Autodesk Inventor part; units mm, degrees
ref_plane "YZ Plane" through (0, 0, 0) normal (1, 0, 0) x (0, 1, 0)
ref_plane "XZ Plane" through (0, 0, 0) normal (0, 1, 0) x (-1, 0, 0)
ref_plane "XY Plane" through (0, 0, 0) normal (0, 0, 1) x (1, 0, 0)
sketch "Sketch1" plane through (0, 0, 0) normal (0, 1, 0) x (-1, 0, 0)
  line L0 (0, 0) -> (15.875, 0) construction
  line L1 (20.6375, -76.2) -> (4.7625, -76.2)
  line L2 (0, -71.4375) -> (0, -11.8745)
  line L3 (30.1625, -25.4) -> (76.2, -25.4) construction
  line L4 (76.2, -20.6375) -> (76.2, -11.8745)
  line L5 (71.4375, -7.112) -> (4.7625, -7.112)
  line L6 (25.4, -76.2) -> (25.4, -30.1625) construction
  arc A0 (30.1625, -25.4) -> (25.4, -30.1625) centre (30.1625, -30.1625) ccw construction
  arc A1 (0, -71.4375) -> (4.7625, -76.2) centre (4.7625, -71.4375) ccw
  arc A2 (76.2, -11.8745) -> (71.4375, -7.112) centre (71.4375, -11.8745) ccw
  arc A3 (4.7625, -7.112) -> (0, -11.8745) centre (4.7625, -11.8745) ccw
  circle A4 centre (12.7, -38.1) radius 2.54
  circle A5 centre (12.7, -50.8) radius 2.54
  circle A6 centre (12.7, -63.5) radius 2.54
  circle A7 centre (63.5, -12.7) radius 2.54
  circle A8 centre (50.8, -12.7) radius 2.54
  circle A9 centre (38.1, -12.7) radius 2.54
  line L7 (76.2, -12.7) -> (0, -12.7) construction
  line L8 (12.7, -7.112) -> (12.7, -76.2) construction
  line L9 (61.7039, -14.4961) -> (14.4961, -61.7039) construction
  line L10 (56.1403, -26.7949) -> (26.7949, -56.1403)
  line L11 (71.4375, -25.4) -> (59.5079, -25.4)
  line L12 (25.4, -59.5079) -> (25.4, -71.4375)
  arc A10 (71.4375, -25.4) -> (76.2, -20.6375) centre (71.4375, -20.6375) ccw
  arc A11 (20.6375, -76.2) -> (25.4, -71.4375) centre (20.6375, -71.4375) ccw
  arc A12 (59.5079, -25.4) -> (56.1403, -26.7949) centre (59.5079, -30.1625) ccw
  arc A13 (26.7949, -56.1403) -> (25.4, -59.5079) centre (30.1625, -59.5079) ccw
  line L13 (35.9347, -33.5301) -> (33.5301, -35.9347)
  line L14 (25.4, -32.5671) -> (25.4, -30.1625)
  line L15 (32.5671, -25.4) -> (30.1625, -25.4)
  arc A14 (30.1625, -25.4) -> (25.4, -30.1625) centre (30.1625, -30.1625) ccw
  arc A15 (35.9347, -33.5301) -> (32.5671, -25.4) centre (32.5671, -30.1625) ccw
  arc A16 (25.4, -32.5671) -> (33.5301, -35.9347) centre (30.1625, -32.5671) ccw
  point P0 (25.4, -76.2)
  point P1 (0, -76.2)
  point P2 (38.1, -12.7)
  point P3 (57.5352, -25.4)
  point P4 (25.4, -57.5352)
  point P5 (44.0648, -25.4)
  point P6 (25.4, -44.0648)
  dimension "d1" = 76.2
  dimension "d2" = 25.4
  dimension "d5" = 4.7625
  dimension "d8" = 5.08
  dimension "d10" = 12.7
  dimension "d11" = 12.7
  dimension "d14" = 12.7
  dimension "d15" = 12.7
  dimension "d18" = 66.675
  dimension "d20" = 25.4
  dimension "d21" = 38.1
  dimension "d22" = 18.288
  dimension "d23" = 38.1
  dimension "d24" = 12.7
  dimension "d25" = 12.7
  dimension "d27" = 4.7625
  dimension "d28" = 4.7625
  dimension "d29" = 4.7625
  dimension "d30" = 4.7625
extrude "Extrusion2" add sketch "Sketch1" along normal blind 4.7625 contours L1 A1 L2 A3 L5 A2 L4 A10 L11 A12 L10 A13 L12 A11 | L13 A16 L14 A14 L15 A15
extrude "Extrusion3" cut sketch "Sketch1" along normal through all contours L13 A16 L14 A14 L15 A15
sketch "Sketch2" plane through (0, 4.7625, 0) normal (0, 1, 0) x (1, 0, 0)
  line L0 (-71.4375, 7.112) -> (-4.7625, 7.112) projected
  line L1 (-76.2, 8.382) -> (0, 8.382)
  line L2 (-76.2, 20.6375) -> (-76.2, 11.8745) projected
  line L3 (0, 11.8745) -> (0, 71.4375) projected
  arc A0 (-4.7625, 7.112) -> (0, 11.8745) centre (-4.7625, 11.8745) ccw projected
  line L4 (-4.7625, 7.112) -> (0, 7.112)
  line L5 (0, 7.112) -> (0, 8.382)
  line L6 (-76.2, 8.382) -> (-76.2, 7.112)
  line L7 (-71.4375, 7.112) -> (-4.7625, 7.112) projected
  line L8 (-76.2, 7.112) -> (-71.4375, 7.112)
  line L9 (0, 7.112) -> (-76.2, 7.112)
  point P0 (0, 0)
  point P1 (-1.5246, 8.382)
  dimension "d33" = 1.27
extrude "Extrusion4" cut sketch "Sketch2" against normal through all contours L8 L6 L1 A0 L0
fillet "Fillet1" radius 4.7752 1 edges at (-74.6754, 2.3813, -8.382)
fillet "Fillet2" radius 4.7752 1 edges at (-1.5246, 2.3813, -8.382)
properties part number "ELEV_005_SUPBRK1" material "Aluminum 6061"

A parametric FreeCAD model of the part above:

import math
import FreeCAD as App
import Part
import Sketcher
from FreeCAD import Vector
Q = App.Units.Quantity


def edges_at(feature, points):
    """Names of the edges that pass closest to the given points."""
    edges = feature.Shape.Edges
    near = lambda p: min(range(len(edges)), key=lambda i: edges[i].distToShape(Part.Vertex(*p))[0])
    return sorted({f"Edge{near(p) + 1}" for p in points})

doc = App.newDocument("Part")
body = doc.addObject("PartDesign::Body", "Body")

sketch1 = body.newObject("Sketcher::SketchObject", "Sketch")
sketch1.AttachmentSupport = (doc.getObject("XZ_Plane"), [""])
sketch1.MapMode = "FlatFace"
sketch1.addGeometry(Part.LineSegment(Vector(-4.7625, -76.2, 0), Vector(-20.6375, -76.2, 0)), False)
sketch1.addGeometry(Part.ArcOfCircle(Part.Circle(Vector(-20.6375, -71.4375, 0), Vector(0, 0, 1), 4.7625), math.radians(180), math.radians(270)), False)
sketch1.addGeometry(Part.LineSegment(Vector(-25.4, -71.4375, 0), Vector(-25.4, -59.5079, 0)), False)
sketch1.addGeometry(Part.ArcOfCircle(Part.Circle(Vector(-30.1625, -59.5079, 0), Vector(0, 0, 1), 4.762506), math.radians(0), math.radians(45)), False)
sketch1.addGeometry(Part.LineSegment(Vector(-26.7949, -56.1403, 0), Vector(-56.1403, -26.7949, 0)), False)
sketch1.addGeometry(Part.ArcOfCircle(Part.Circle(Vector(-59.5079, -30.1625, 0), Vector(0, 0, 1), 4.7625), math.radians(45), math.radians(90)), False)
sketch1.addGeometry(Part.LineSegment(Vector(-59.5079, -25.4, 0), Vector(-71.4375, -25.4, 0)), False)
sketch1.addGeometry(Part.ArcOfCircle(Part.Circle(Vector(-71.4375, -20.6375, 0), Vector(0, 0, 1), 4.7625), math.radians(180), math.radians(270)), False)
sketch1.addGeometry(Part.LineSegment(Vector(-76.2, -20.6375, 0), Vector(-76.2, -11.8745, 0)), False)
sketch1.addGeometry(Part.ArcOfCircle(Part.Circle(Vector(-71.4375, -11.8745, 0), Vector(0, 0, 1), 4.7625), math.radians(90), math.radians(180)), False)
sketch1.addGeometry(Part.LineSegment(Vector(-71.4375, -7.112, 0), Vector(-4.7625, -7.112, 0)), False)
sketch1.addGeometry(Part.ArcOfCircle(Part.Circle(Vector(-4.7625, -11.8745, 0), Vector(0, 0, 1), 4.7625), math.radians(0), math.radians(90)), False)
sketch1.addGeometry(Part.LineSegment(Vector(0, -11.8745, 0), Vector(0, -71.4375, 0)), False)
sketch1.addGeometry(Part.ArcOfCircle(Part.Circle(Vector(-4.7625, -71.4375, 0), Vector(0, 0, 1), 4.7625), math.radians(-90), math.radians(0)), False)
sketch1.addGeometry(Part.Circle(Vector(-12.7, -63.5, 0), Vector(0, 0, 1), 2.54), False)
sketch1.addGeometry(Part.Circle(Vector(-12.7, -50.8, 0), Vector(0, 0, 1), 2.54), False)
sketch1.addGeometry(Part.Circle(Vector(-12.7, -38.1, 0), Vector(0, 0, 1), 2.54), False)
sketch1.addGeometry(Part.Circle(Vector(-38.1, -12.7, 0), Vector(0, 0, 1), 2.54), False)
sketch1.addGeometry(Part.Circle(Vector(-50.8, -12.7, 0), Vector(0, 0, 1), 2.54), False)
sketch1.addGeometry(Part.Circle(Vector(-63.5, -12.7, 0), Vector(0, 0, 1), 2.54), False)
sketch1.addConstraint(Sketcher.Constraint("Tangent", 0, 2, 1, 2))
sketch1.addConstraint(Sketcher.Constraint("Tangent", 1, 1, 2, 1))
sketch1.addConstraint(Sketcher.Constraint("Tangent", 2, 2, 3, 1))
sketch1.addConstraint(Sketcher.Constraint("Tangent", 3, 2, 4, 1))
sketch1.addConstraint(Sketcher.Constraint("Tangent", 4, 2, 5, 1))
sketch1.addConstraint(Sketcher.Constraint("Tangent", 5, 2, 6, 1))
sketch1.addConstraint(Sketcher.Constraint("Tangent", 6, 2, 7, 2))
sketch1.addConstraint(Sketcher.Constraint("Tangent", 7, 1, 8, 1))
sketch1.addConstraint(Sketcher.Constraint("Tangent", 8, 2, 9, 2))
sketch1.addConstraint(Sketcher.Constraint("Tangent", 9, 1, 10, 1))
sketch1.addConstraint(Sketcher.Constraint("Tangent", 10, 2, 11, 2))
sketch1.addConstraint(Sketcher.Constraint("Tangent", 11, 1, 12, 1))
sketch1.addConstraint(Sketcher.Constraint("Tangent", 12, 2, 13, 2))
sketch1.addConstraint(Sketcher.Constraint("Tangent", 13, 1, 0, 1))
sketch1.addConstraint(Sketcher.Constraint("Horizontal", 0))
sketch1.addConstraint(Sketcher.Constraint("Vertical", 2))
sketch1.addConstraint(Sketcher.Constraint("Horizontal", 6))
sketch1.addConstraint(Sketcher.Constraint("Vertical", 8))
sketch1.addConstraint(Sketcher.Constraint("Horizontal", 10))
sketch1.addConstraint(Sketcher.Constraint("Vertical", 12))
sketch1.addConstraint(Sketcher.Constraint("Equal", 1, 3))
sketch1.addConstraint(Sketcher.Constraint("Equal", 3, 5))
sketch1.addConstraint(Sketcher.Constraint("Equal", 5, 7))
sketch1.addConstraint(Sketcher.Constraint("Equal", 7, 9))
sketch1.addConstraint(Sketcher.Constraint("Equal", 9, 11))
sketch1.addConstraint(Sketcher.Constraint("Equal", 11, 13))
sketch1.addConstraint(Sketcher.Constraint("Equal", 14, 15))
sketch1.addConstraint(Sketcher.Constraint("Equal", 15, 16))
sketch1.addConstraint(Sketcher.Constraint("Equal", 16, 17))
sketch1.addConstraint(Sketcher.Constraint("Equal", 17, 18))
sketch1.addConstraint(Sketcher.Constraint("Equal", 18, 19))
sketch1.addConstraint(Sketcher.Constraint("PointOnObject", 11, 1, -2))
sketch1.addConstraint(Sketcher.Constraint("Horizontal", 17, 3, 18, 3))
sketch1.addConstraint(Sketcher.Constraint("Horizontal", 18, 3, 19, 3))
sketch1.addConstraint(Sketcher.Constraint("Vertical", 14, 3, 15, 3))
sketch1.addConstraint(Sketcher.Constraint("Vertical", 15, 3, 16, 3))
sketch1.addConstraint(Sketcher.Constraint("Equal", 6, 2))
sketch1.addConstraint(Sketcher.Constraint("Diameter", 14, Q("0.2 in")))
sketch1.addConstraint(Sketcher.Constraint("DistanceY", 0, 2, -1, 1, Q("3 in")))
sketch1.addConstraint(Sketcher.Constraint("DistanceX", 1, 1, -1, 1, Q("1 in")))
sketch1.addConstraint(Sketcher.Constraint("DistanceY", 5, 2, -1, 1, Q("1 in")))
sketch1.addConstraint(Sketcher.Constraint("DistanceX", 7, 1, -1, 1, Q("3 in")))
sketch1.addConstraint(Sketcher.Constraint("Radius", 1, Q("0.1875 in")))
sketch1.addConstraint(Sketcher.Constraint("DistanceY", 14, 3, 16, 3, Q("1 in")))
sketch1.addConstraint(Sketcher.Constraint("DistanceX", 17, 3, 16, 3, Q("1 in")))
sketch1.addConstraint(Sketcher.Constraint("DistanceY", 16, 3, 17, 3, Q("1 in")))
sketch1.addConstraint(Sketcher.Constraint("DistanceX", 19, 3, 17, 3, Q("1 in")))
sketch1.addConstraint(Sketcher.Constraint("DistanceY", 0, 2, 15, 3, Q("1 in")))
sketch1.addConstraint(Sketcher.Constraint("DistanceX", 14, 3, -1, 1, Q("0.5 in")))
sketch1.addConstraint(Sketcher.Constraint("DistanceY", 16, 3, -1, 1, Q("1.5 in")))
sketch1.addConstraint(Sketcher.Constraint("DistanceX", 18, 3, 17, 3, Q("0.5 in")))
sketch1.addConstraint(Sketcher.Constraint("DistanceY", 5, 3, 9, 3, Q("0.72 in")))
sketch1.addConstraint(Sketcher.Constraint("DistanceX", 6, 2, 6, 1, Q("11.9296 mm")))
pad1 = body.newObject("PartDesign::Pad", "Pad")
pad1.Profile = sketch1
pad1.Length = Q("0.1875 in")
pad1.Reversed = True

sketch2 = body.newObject("Sketcher::SketchObject", "Sketch001")
sketch2.AttachmentSupport = (doc.getObject("XZ_Plane"), [""])
sketch2.MapMode = "FlatFace"
sketch2.addGeometry(Part.LineSegment(Vector(-33.5301, -35.9347, 0), Vector(-35.9347, -33.5301, 0)), False)
sketch2.addGeometry(Part.ArcOfCircle(Part.Circle(Vector(-32.5671, -30.1625, 0), Vector(0, 0, 1), 4.762506), math.radians(90), math.radians(225)), False)
sketch2.addGeometry(Part.LineSegment(Vector(-32.5671, -25.4, 0), Vector(-30.1625, -25.4, 0)), False)
sketch2.addGeometry(Part.ArcOfCircle(Part.Circle(Vector(-30.1625, -30.1625, 0), Vector(0, 0, 1), 4.7625), math.radians(0), math.radians(90)), False)
sketch2.addGeometry(Part.LineSegment(Vector(-25.4, -30.1625, 0), Vector(-25.4, -32.5671, 0)), False)
sketch2.addGeometry(Part.ArcOfCircle(Part.Circle(Vector(-30.1625, -32.5671, 0), Vector(0, 0, 1), 4.7625), math.radians(-135), math.radians(0)), False)
sketch2.addConstraint(Sketcher.Constraint("Tangent", 0, 2, 1, 2))
sketch2.addConstraint(Sketcher.Constraint("Tangent", 1, 1, 2, 1))
sketch2.addConstraint(Sketcher.Constraint("Tangent", 2, 2, 3, 2))
sketch2.addConstraint(Sketcher.Constraint("Tangent", 3, 1, 4, 1))
sketch2.addConstraint(Sketcher.Constraint("Tangent", 4, 2, 5, 2))
sketch2.addConstraint(Sketcher.Constraint("Tangent", 5, 1, 0, 1))
sketch2.addConstraint(Sketcher.Constraint("Horizontal", 2))
sketch2.addConstraint(Sketcher.Constraint("Vertical", 4))
sketch2.addConstraint(Sketcher.Constraint("Equal", 1, 3))
sketch2.addConstraint(Sketcher.Constraint("Equal", 3, 5))
sketch2.addConstraint(Sketcher.Constraint("Equal", 2, 4))
sketch2.addConstraint(Sketcher.Constraint("DistanceY", 1, 1, -1, 1, Q("1 in")))
sketch2.addConstraint(Sketcher.Constraint("DistanceX", 3, 1, -1, 1, Q("1 in")))
sketch2.addConstraint(Sketcher.Constraint("Radius", 1, Q("0.1875 in")))
sketch2.addConstraint(Sketcher.Constraint("DistanceX", 2, 1, 2, 2, Q("2.4046 mm")))
pocket1 = body.newObject("PartDesign::Pocket", "Pocket")
pocket1.Profile = sketch2
pocket1.Type = "ThroughAll"

sketch3 = body.newObject("Sketcher::SketchObject", "Sketch002")
sketch3.AttachmentSupport = (doc.getObject("XZ_Plane"), [""])
sketch3.MapMode = "FlatFace"
sketch3.AttachmentOffset = App.Placement(Vector(0, 0, -0.1875 * 25.4), App.Rotation())
sketch3.addGeometry(Part.LineSegment(Vector(-76.2, -7.112, 0), Vector(-4.7625, -7.112, 0)), False)
sketch3.addGeometry(Part.ArcOfCircle(Part.Circle(Vector(-4.7625, -11.8745, 0), Vector(0, 0, 1), 4.7625), math.radians(47.166572), math.radians(90)), False)
sketch3.addGeometry(Part.LineSegment(Vector(-1.524623, -8.382, 0), Vector(-76.2, -8.382, 0)), False)
sketch3.addGeometry(Part.LineSegment(Vector(-76.2, -8.382, 0), Vector(-76.2, -7.112, 0)), False)
sketch3.addConstraint(Sketcher.Constraint("Tangent", 0, 2, 1, 2))
sketch3.addConstraint(Sketcher.Constraint("Coincident", 1, 1, 2, 1))
sketch3.addConstraint(Sketcher.Constraint("Coincident", 2, 2, 3, 1))
sketch3.addConstraint(Sketcher.Constraint("Coincident", 3, 2, 0, 1))
sketch3.addConstraint(Sketcher.Constraint("Horizontal", 0))
sketch3.addConstraint(Sketcher.Constraint("Horizontal", 2))
sketch3.addConstraint(Sketcher.Constraint("Vertical", 3))
sketch3.addConstraint(Sketcher.Constraint("DistanceY", 3, 1, 3, 2, Q("0.05 in")))
sketch3.addConstraint(Sketcher.Constraint("DistanceX", 2, 2, -1, 1, Q("3 in")))
sketch3.addConstraint(Sketcher.Constraint("Radius", 1, Q("0.1875 in")))
sketch3.addConstraint(Sketcher.Constraint("DistanceX", 0, 1, 0, 2, Q("2.8125 in")))
sketch3.addConstraint(Sketcher.Constraint("DistanceY", 0, 2, -1, 1, Q("0.28 in")))
pocket2 = body.newObject("PartDesign::Pocket", "Pocket001")
pocket2.Profile = sketch3
pocket2.Type = "ThroughAll"
pocket2.Reversed = True
doc.recompute()

fillet = body.newObject("PartDesign::Fillet", "Fillet")
fillet.Base = (pocket2, edges_at(pocket2, [(-74.675, 2.381, -8.382)]))
fillet.Radius = Q("0.188 in")
doc.recompute()

fillet2 = body.newObject("PartDesign::Fillet", "Fillet001")
fillet2.Base = (fillet, edges_at(fillet, [(-1.525, 2.381, -8.382)]))
fillet2.Radius = Q("0.188 in")

doc.recompute()
